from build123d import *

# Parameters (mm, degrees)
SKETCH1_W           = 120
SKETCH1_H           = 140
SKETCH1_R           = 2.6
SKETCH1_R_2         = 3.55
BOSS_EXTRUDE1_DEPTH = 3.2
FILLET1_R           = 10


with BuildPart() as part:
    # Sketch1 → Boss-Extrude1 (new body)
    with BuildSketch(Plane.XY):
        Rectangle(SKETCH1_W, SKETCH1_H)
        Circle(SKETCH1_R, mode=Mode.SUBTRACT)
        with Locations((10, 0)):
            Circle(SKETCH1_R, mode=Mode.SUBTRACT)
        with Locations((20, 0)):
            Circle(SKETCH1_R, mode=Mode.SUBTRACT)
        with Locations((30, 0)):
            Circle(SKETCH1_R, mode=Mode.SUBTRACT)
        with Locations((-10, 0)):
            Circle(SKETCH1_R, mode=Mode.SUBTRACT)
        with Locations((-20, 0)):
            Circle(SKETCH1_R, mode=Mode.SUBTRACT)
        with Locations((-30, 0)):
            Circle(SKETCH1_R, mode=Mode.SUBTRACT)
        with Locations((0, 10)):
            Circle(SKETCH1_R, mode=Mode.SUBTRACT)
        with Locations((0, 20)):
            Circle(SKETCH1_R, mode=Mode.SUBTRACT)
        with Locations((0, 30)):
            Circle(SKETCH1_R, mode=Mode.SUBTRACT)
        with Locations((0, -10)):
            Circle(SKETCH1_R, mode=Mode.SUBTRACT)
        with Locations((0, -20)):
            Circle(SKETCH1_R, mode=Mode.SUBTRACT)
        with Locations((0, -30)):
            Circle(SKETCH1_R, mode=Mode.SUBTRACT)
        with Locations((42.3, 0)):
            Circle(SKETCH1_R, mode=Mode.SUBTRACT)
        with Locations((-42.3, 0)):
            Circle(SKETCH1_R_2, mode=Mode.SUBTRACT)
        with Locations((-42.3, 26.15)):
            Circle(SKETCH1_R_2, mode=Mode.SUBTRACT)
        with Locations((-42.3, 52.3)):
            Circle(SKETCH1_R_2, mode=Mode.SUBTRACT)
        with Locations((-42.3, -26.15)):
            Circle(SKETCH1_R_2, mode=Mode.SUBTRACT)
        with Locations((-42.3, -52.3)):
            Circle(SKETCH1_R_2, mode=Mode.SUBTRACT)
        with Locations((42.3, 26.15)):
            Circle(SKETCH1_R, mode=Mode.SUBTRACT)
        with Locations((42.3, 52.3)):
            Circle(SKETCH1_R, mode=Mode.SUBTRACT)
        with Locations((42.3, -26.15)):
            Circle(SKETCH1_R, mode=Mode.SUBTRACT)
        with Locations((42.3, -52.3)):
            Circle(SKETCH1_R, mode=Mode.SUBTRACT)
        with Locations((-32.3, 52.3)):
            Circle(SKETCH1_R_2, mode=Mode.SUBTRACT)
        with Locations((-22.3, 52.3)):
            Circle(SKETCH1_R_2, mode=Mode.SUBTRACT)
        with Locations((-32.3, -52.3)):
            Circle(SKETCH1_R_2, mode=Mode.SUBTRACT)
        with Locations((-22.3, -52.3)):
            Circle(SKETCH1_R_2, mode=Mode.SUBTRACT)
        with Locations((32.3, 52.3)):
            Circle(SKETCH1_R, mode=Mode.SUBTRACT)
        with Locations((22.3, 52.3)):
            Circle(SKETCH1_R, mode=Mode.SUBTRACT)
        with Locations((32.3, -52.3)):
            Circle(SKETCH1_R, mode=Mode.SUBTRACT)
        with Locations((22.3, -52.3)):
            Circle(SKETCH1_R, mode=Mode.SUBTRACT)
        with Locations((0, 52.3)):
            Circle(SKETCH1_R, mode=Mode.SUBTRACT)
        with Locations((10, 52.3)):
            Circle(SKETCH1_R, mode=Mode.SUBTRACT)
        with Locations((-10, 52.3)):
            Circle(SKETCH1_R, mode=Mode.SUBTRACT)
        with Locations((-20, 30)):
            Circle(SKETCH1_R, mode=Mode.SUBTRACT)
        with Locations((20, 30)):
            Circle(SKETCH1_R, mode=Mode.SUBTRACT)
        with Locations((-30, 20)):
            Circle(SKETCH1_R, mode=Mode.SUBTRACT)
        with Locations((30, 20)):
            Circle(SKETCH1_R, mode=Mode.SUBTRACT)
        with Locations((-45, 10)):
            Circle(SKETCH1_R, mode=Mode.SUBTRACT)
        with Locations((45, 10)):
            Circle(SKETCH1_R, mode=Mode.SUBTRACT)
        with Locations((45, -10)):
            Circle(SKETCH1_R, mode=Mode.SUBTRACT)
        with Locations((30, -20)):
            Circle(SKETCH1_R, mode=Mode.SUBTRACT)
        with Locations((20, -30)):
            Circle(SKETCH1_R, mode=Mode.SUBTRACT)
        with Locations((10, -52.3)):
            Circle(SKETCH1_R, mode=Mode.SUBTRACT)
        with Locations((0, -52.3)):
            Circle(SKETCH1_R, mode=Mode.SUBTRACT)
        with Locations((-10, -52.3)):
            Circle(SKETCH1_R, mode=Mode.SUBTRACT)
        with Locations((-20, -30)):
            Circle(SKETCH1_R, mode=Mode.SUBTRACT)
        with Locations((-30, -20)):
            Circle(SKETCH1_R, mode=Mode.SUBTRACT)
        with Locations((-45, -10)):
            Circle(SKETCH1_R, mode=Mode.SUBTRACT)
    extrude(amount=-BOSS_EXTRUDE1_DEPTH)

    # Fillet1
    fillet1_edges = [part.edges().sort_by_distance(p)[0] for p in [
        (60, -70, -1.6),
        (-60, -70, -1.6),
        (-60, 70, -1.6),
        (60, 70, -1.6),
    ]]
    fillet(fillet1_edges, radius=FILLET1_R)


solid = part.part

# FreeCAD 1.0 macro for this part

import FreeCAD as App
import Part
import Sketcher
from FreeCAD import Vector
Q = App.Units.Quantity


def edges_at(feature, points):
    """Names of the edges that pass closest to the given points."""
    edges = feature.Shape.Edges
    near = lambda p: min(range(len(edges)), key=lambda i: edges[i].distToShape(Part.Vertex(*p))[0])
    return sorted({f"Edge{near(p) + 1}" for p in points})


def add_polygon(sketch, points):
    """Adds a closed chain of lines whose ends are joined by coincident constraints."""
    first, n = sketch.GeometryCount, len(points)
    for a, b in zip(points, points[1:] + points[:1]):
        sketch.addGeometry(Part.LineSegment(App.Vector(*a, 0), App.Vector(*b, 0)), False)
    for i in range(n):
        sketch.addConstraint(Sketcher.Constraint("Coincident", first + i, 2, first + (i + 1) % n, 1))

doc = App.newDocument("Part")
body = doc.addObject("PartDesign::Body", "Body")

# Sketch on XY plane
sketch1 = body.newObject("Sketcher::SketchObject", "Sketch")
sketch1.AttachmentSupport = (doc.getObject("XY_Plane"), [""])
sketch1.MapMode = "FlatFace"
add_polygon(sketch1, [(-60, 70), (-60, -70), (60, -70), (60, 70)])  # lines 0-3
sketch1.addGeometry(Part.Circle(Vector(-42.3, -52.3, 0), Vector(0, 0, 1), 3.5), False)  # 4
sketch1.addGeometry(Part.Circle(Vector(-32.3, -52.3, 0), Vector(0, 0, 1), 3.5), False)  # 5
sketch1.addGeometry(Part.Circle(Vector(-22.3, -52.3, 0), Vector(0, 0, 1), 3.5), False)  # 6
sketch1.addGeometry(Part.Circle(Vector(-10, -52.3, 0), Vector(0, 0, 1), 2.6), False)  # 7
sketch1.addGeometry(Part.Circle(Vector(-20, -30, 0), Vector(0, 0, 1), 2.6), False)  # 8
sketch1.addGeometry(Part.Circle(Vector(-42.3, -26.1, 0), Vector(0, 0, 1), 3.5), False)  # 9
sketch1.addGeometry(Part.Circle(Vector(-30, -20, 0), Vector(0, 0, 1), 2.6), False)  # 10
sketch1.addGeometry(Part.Circle(Vector(-45, -10, 0), Vector(0, 0, 1), 2.6), False)  # 11
sketch1.addGeometry(Part.Circle(Vector(0, -52.3, 0), Vector(0, 0, 1), 2.6), False)  # 12
sketch1.addGeometry(Part.Circle(Vector(10, -52.3, 0), Vector(0, 0, 1), 2.6), False)  # 13
sketch1.addGeometry(Part.Circle(Vector(22.3, -52.3, 0), Vector(0, 0, 1), 2.6), False)  # 14
sketch1.addGeometry(Part.Circle(Vector(0, -30, 0), Vector(0, 0, 1), 2.6), False)  # 15
sketch1.addGeometry(Part.Circle(Vector(20, -30, 0), Vector(0, 0, 1), 2.6), False)  # 16
sketch1.addGeometry(Part.Circle(Vector(32.3, -52.3, 0), Vector(0, 0, 1), 2.6), False)  # 17
sketch1.addGeometry(Part.Circle(Vector(42.3, -52.3, 0), Vector(0, 0, 1), 2.6), False)  # 18
sketch1.addGeometry(Part.Circle(Vector(0, -20, 0), Vector(0, 0, 1), 2.6), False)  # 19
sketch1.addGeometry(Part.Circle(Vector(0, -10, 0), Vector(0, 0, 1), 2.6), False)  # 20
sketch1.addGeometry(Part.Circle(Vector(30, -20, 0), Vector(0, 0, 1), 2.6), False)  # 21
sketch1.addGeometry(Part.Circle(Vector(42.3, -26.1, 0), Vector(0, 0, 1), 2.6), False)  # 22
sketch1.addGeometry(Part.Circle(Vector(45, -10, 0), Vector(0, 0, 1), 2.6), False)  # 23
sketch1.addGeometry(Part.Circle(Vector(-42.3, 0, 0), Vector(0, 0, 1), 3.5), False)  # 24
sketch1.addGeometry(Part.Circle(Vector(-45, 10, 0), Vector(0, 0, 1), 2.6), False)  # 25
sketch1.addGeometry(Part.Circle(Vector(-30, 0, 0), Vector(0, 0, 1), 2.6), False)  # 26
sketch1.addGeometry(Part.Circle(Vector(-42.3, 26.1, 0), Vector(0, 0, 1), 3.5), False)  # 27
sketch1.addGeometry(Part.Circle(Vector(-30, 20, 0), Vector(0, 0, 1), 2.6), False)  # 28
sketch1.addGeometry(Part.Circle(Vector(-20, 0, 0), Vector(0, 0, 1), 2.6), False)  # 29
sketch1.addGeometry(Part.Circle(Vector(-10, 0, 0), Vector(0, 0, 1), 2.6), False)  # 30
sketch1.addGeometry(Part.Circle(Vector(-42.3, 52.3, 0), Vector(0, 0, 1), 3.5), False)  # 31
sketch1.addGeometry(Part.Circle(Vector(-32.3, 52.3, 0), Vector(0, 0, 1), 3.5), False)  # 32
sketch1.addGeometry(Part.Circle(Vector(-20, 30, 0), Vector(0, 0, 1), 2.6), False)  # 33
sketch1.addGeometry(Part.Circle(Vector(-22.3, 52.3, 0), Vector(0, 0, 1), 3.5), False)  # 34
sketch1.addGeometry(Part.Circle(Vector(-10, 52.3, 0), Vector(0, 0, 1), 2.6), False)  # 35
sketch1.addGeometry(Part.Circle(Vector(0, 0, 0), Vector(0, 0, 1), 2.6), False)  # 36
sketch1.addGeometry(Part.Circle(Vector(10, 0, 0), Vector(0, 0, 1), 2.6), False)  # 37
sketch1.addGeometry(Part.Circle(Vector(0, 10, 0), Vector(0, 0, 1), 2.6), False)  # 38
sketch1.addGeometry(Part.Circle(Vector(20, 0, 0), Vector(0, 0, 1), 2.6), False)  # 39
sketch1.addGeometry(Part.Circle(Vector(0, 20, 0), Vector(0, 0, 1), 2.6), False)  # 40
sketch1.addGeometry(Part.Circle(Vector(30, 0, 0), Vector(0, 0, 1), 2.6), False)  # 41
sketch1.addGeometry(Part.Circle(Vector(42.3, 0, 0), Vector(0, 0, 1), 2.6), False)  # 42
sketch1.addGeometry(Part.Circle(Vector(45, 10, 0), Vector(0, 0, 1), 2.6), False)  # 43
sketch1.addGeometry(Part.Circle(Vector(30, 20, 0), Vector(0, 0, 1), 2.6), False)  # 44
sketch1.addGeometry(Part.Circle(Vector(42.3, 26.1, 0), Vector(0, 0, 1), 2.6), False)  # 45
sketch1.addGeometry(Part.Circle(Vector(0, 30, 0), Vector(0, 0, 1), 2.6), False)  # 46
sketch1.addGeometry(Part.Circle(Vector(20, 30, 0), Vector(0, 0, 1), 2.6), False)  # 47
sketch1.addGeometry(Part.Circle(Vector(0, 52.3, 0), Vector(0, 0, 1), 2.6), False)  # 48
sketch1.addGeometry(Part.Circle(Vector(10, 52.3, 0), Vector(0, 0, 1), 2.6), False)  # 49
sketch1.addGeometry(Part.Circle(Vector(22.3, 52.3, 0), Vector(0, 0, 1), 2.6), False)  # 50
sketch1.addGeometry(Part.Circle(Vector(32.3, 52.3, 0), Vector(0, 0, 1), 2.6), False)  # 51
sketch1.addGeometry(Part.Circle(Vector(42.3, 52.3, 0), Vector(0, 0, 1), 2.6), False)  # 52
sketch1.addConstraint(Sketcher.Constraint("Vertical", 0))
sketch1.addConstraint(Sketcher.Constraint("Horizontal", 1))
sketch1.addConstraint(Sketcher.Constraint("Vertical", 2))
sketch1.addConstraint(Sketcher.Constraint("Horizontal", 3))
sketch1.addConstraint(Sketcher.Constraint("Coincident", 36, 3, -1, 1))
sketch1.addConstraint(Sketcher.Constraint("Equal", 4, 5))
sketch1.addConstraint(Sketcher.Constraint("Equal", 5, 6))
sketch1.addConstraint(Sketcher.Constraint("Equal", 7, 8))
sketch1.addConstraint(Sketcher.Constraint("Equal", 6, 9))
sketch1.addConstraint(Sketcher.Constraint("Equal", 8, 10))
sketch1.addConstraint(Sketcher.Constraint("Equal", 10, 11))
sketch1.addConstraint(Sketcher.Constraint("Equal", 11, 12))
sketch1.addConstraint(Sketcher.Constraint("Equal", 12, 13))
sketch1.addConstraint(Sketcher.Constraint("Equal", 13, 14))
sketch1.addConstraint(Sketcher.Constraint("Equal", 14, 15))
sketch1.addConstraint(Sketcher.Constraint("Equal", 15, 16))
sketch1.addConstraint(Sketcher.Constraint("Equal", 16, 17))
sketch1.addConstraint(Sketcher.Constraint("Equal", 17, 18))
sketch1.addConstraint(Sketcher.Constraint("Equal", 18, 19))
sketch1.addConstraint(Sketcher.Constraint("Equal", 19, 20))
sketch1.addConstraint(Sketcher.Constraint("Equal", 20, 21))
sketch1.addConstraint(Sketcher.Constraint("Equal", 21, 22))
sketch1.addConstraint(Sketcher.Constraint("Equal", 22, 23))
sketch1.addConstraint(Sketcher.Constraint("Equal", 9, 24))
sketch1.addConstraint(Sketcher.Constraint("Equal", 23, 25))
sketch1.addConstraint(Sketcher.Constraint("Equal", 25, 26))
sketch1.addConstraint(Sketcher.Constraint("Equal", 24, 27))
sketch1.addConstraint(Sketcher.Constraint("Equal", 26, 28))
sketch1.addConstraint(Sketcher.Constraint("Equal", 28, 29))
sketch1.addConstraint(Sketcher.Constraint("Equal", 29, 30))
sketch1.addConstraint(Sketcher.Constraint("Equal", 27, 31))
sketch1.addConstraint(Sketcher.Constraint("Equal", 31, 32))
sketch1.addConstraint(Sketcher.Constraint("Equal", 30, 33))
sketch1.addConstraint(Sketcher.Constraint("Equal", 32, 34))
sketch1.addConstraint(Sketcher.Constraint("Equal", 33, 35))
sketch1.addConstraint(Sketcher.Constraint("Equal", 35, 36))
sketch1.addConstraint(Sketcher.Constraint("Equal", 36, 37))
sketch1.addConstraint(Sketcher.Constraint("Equal", 37, 38))
sketch1.addConstraint(Sketcher.Constraint("Equal", 38, 39))
sketch1.addConstraint(Sketcher.Constraint("Equal", 39, 40))
sketch1.addConstraint(Sketcher.Constraint("Equal", 40, 41))
sketch1.addConstraint(Sketcher.Constraint("Equal", 41, 42))
sketch1.addConstraint(Sketcher.Constraint("Equal", 42, 43))
sketch1.addConstraint(Sketcher.Constraint("Equal", 43, 44))
sketch1.addConstraint(Sketcher.Constraint("Equal", 44, 45))
sketch1.addConstraint(Sketcher.Constraint("Equal", 45, 46))
sketch1.addConstraint(Sketcher.Constraint("Equal", 46, 47))
sketch1.addConstraint(Sketcher.Constraint("Equal", 47, 48))
sketch1.addConstraint(Sketcher.Constraint("Equal", 48, 49))
sketch1.addConstraint(Sketcher.Constraint("Equal", 49, 50))
sketch1.addConstraint(Sketcher.Constraint("Equal", 50, 51))
sketch1.addConstraint(Sketcher.Constraint("Equal", 51, 52))
sketch1.addConstraint(Sketcher.Constraint("Symmetric", 23, 3, 25, 3, -1, 1))
sketch1.addConstraint(Sketcher.Constraint("Symmetric", 22, 3, 27, 3, -1, 1))
sketch1.addConstraint(Sketcher.Constraint("Symmetric", 21, 3, 28, 3, -1, 1))
sketch1.addConstraint(Sketcher.Constraint("Symmetric", 18, 3, 31, 3, -1, 1))
sketch1.addConstraint(Sketcher.Constraint("Symmetric", 17, 3, 32, 3, -1, 1))
sketch1.addConstraint(Sketcher.Constraint("Symmetric", 16, 3, 33, 3, -1, 1))
sketch1.addConstraint(Sketcher.Constraint("Symmetric", 14, 3, 34, 3, -1, 1))
sketch1.addConstraint(Sketcher.Constraint("Symmetric", 13, 3, 35, 3, -1, 1))
sketch1.addConstraint(Sketcher.Constraint("Symmetric", 30, 3, 37, 3, -1, 1))
sketch1.addConstraint(Sketcher.Constraint("Symmetric", 20, 3, 38, 3, -1, 1))
sketch1.addConstraint(Sketcher.Constraint("Symmetric", 29, 3, 39, 3, -1, 1))
sketch1.addConstraint(Sketcher.Constraint("Symmetric", 19, 3, 40, 3, -1, 1))
sketch1.addConstraint(Sketcher.Constraint("Symmetric", 26, 3, 41, 3, -1, 1))
sketch1.addConstraint(Sketcher.Constraint("Symmetric", 24, 3, 42, 3, -1, 1))
sketch1.addConstraint(Sketcher.Constraint("Symmetric", 11, 3, 43, 3, -1, 1))
sketch1.addConstraint(Sketcher.Constraint("Symmetric", 10, 3, 44, 3, -1, 1))
sketch1.addConstraint(Sketcher.Constraint("Symmetric", 9, 3, 45, 3, -1, 1))
sketch1.addConstraint(Sketcher.Constraint("Symmetric", 15, 3, 46, 3, -1, 1))
sketch1.addConstraint(Sketcher.Constraint("Symmetric", 8, 3, 47, 3, -1, 1))
sketch1.addConstraint(Sketcher.Constraint("Symmetric", 12, 3, 48, 3, -1, 1))
sketch1.addConstraint(Sketcher.Constraint("Symmetric", 7, 3, 49, 3, -1, 1))
sketch1.addConstraint(Sketcher.Constraint("Symmetric", 6, 3, 50, 3, -1, 1))
sketch1.addConstraint(Sketcher.Constraint("Symmetric", 5, 3, 51, 3, -1, 1))
sketch1.addConstraint(Sketcher.Constraint("Symmetric", 4, 3, 52, 3, -1, 1))
sketch1.addConstraint(Sketcher.Constraint("Symmetric", 0, 2, 2, 2, -1, 1))
sketch1.addConstraint(Sketcher.Constraint("Symmetric", 7, 3, 13, 3, -2))
sketch1.addConstraint(Sketcher.Constraint("Symmetric", 6, 3, 14, 3, -2))
sketch1.addConstraint(Sketcher.Constraint("Symmetric", 8, 3, 16, 3, -2))
sketch1.addConstraint(Sketcher.Constraint("Symmetric", 5, 3, 17, 3, -2))
sketch1.addConstraint(Sketcher.Constraint("Symmetric", 4, 3, 18, 3, -2))
sketch1.addConstraint(Sketcher.Constraint("Symmetric", 10, 3, 21, 3, -2))
sketch1.addConstraint(Sketcher.Constraint("Symmetric", 9, 3, 22, 3, -2))
sketch1.addConstraint(Sketcher.Constraint("Symmetric", 11, 3, 23, 3, -2))
sketch1.addConstraint(Sketcher.Constraint("PointOnObject", 12, 3, -2))
sketch1.addConstraint(Sketcher.Constraint("PointOnObject", 15, 3, -2))
sketch1.addConstraint(Sketcher.Constraint("PointOnObject", 19, 3, -2))
sketch1.addConstraint(Sketcher.Constraint("PointOnObject", 20, 3, -2))
sketch1.addConstraint(Sketcher.Constraint("PointOnObject", 24, 3, -1))
sketch1.addConstraint(Sketcher.Constraint("PointOnObject", 26, 3, -1))
sketch1.addConstraint(Sketcher.Constraint("PointOnObject", 29, 3, -1))
sketch1.addConstraint(Sketcher.Constraint("PointOnObject", 30, 3, -1))
sketch1.addConstraint(Sketcher.Constraint("Horizontal", 4, 3, 5, 3))
sketch1.addConstraint(Sketcher.Constraint("Horizontal", 5, 3, 6, 3))
sketch1.addConstraint(Sketcher.Constraint("Horizontal", 6, 3, 7, 3))
sketch1.addConstraint(Sketcher.Constraint("Horizontal", 7, 3, 12, 3))
sketch1.addConstraint(Sketcher.Constraint("Horizontal", 8, 3, 15, 3))
sketch1.addConstraint(Sketcher.Constraint("Horizontal", 10, 3, 19, 3))
sketch1.addConstraint(Sketcher.Constraint("Horizontal", 11, 3, 20, 3))
sketch1.addConstraint(Sketcher.Constraint("Vertical", 4, 3, 9, 3))
sketch1.addConstraint(Sketcher.Constraint("Vertical", 9, 3, 24, 3))
sketch1.addConstraint(Sketcher.Constraint("Vertical", 10, 3, 26, 3))
sketch1.addConstraint(Sketcher.Constraint("Vertical", 8, 3, 29, 3))
sketch1.addConstraint(Sketcher.Constraint("Vertical", 7, 3, 30, 3))
sketch1.addConstraint(Sketcher.Constraint("Diameter", 4, Q("7.1 mm")))
sketch1.addConstraint(Sketcher.Constraint("Diameter", 7, Q("5.2 mm")))
sketch1.addConstraint(Sketcher.Constraint("DistanceX", 1, 1, 1, 2, Q("120 mm")))
sketch1.addConstraint(Sketcher.Constraint("DistanceY", 0, 2, 0, 1, Q("140 mm")))
sketch1.addConstraint(Sketcher.Constraint("DistanceX", 7, 3, -1, 1, Q("10 mm")))
sketch1.addConstraint(Sketcher.Constraint("DistanceX", 8, 3, -1, 1, Q("20 mm")))
sketch1.addConstraint(Sketcher.Constraint("DistanceY", 8, 3, -1, 1, Q("30 mm")))
sketch1.addConstraint(Sketcher.Constraint("DistanceX", 10, 3, -1, 1, Q("30 mm")))
sketch1.addConstraint(Sketcher.Constraint("DistanceY", 10, 3, -1, 1, Q("20 mm")))
sketch1.addConstraint(Sketcher.Constraint("DistanceX", 11, 3, -1, 1, Q("45 mm")))
sketch1.addConstraint(Sketcher.Constraint("DistanceY", 11, 3, -1, 1, Q("10 mm")))
sketch1.addConstraint(Sketcher.Constraint("DistanceX", 4, 3, 5, 3, Q("10 mm")))
sketch1.addConstraint(Sketcher.Constraint("DistanceX", 5, 3, 6, 3, Q("10 mm")))
sketch1.addConstraint(Sketcher.Constraint("DistanceX", 4, 3, -1, 1, Q("42.3 mm")))
sketch1.addConstraint(Sketcher.Constraint("DistanceY", 4, 3, -1, 1, Q("52.3 mm")))
sketch1.addConstraint(Sketcher.Constraint("DistanceY", 9, 3, -1, 1, Q("26.15 mm")))
pad1 = body.newObject("PartDesign::Pad", "Pad")
pad1.Profile = sketch1
pad1.Length = 3.2
pad1.Reversed = True
doc.recompute()

fillet = body.newObject("PartDesign::Fillet", "Fillet")
fillet.Base = (pad1, edges_at(pad1, [
    (60, -70, -1.6),
    (-60, -70, -1.6),
    (-60, 70, -1.6),
    (60, 70, -1.6),
]))
fillet.Radius = 10

doc.recompute()
